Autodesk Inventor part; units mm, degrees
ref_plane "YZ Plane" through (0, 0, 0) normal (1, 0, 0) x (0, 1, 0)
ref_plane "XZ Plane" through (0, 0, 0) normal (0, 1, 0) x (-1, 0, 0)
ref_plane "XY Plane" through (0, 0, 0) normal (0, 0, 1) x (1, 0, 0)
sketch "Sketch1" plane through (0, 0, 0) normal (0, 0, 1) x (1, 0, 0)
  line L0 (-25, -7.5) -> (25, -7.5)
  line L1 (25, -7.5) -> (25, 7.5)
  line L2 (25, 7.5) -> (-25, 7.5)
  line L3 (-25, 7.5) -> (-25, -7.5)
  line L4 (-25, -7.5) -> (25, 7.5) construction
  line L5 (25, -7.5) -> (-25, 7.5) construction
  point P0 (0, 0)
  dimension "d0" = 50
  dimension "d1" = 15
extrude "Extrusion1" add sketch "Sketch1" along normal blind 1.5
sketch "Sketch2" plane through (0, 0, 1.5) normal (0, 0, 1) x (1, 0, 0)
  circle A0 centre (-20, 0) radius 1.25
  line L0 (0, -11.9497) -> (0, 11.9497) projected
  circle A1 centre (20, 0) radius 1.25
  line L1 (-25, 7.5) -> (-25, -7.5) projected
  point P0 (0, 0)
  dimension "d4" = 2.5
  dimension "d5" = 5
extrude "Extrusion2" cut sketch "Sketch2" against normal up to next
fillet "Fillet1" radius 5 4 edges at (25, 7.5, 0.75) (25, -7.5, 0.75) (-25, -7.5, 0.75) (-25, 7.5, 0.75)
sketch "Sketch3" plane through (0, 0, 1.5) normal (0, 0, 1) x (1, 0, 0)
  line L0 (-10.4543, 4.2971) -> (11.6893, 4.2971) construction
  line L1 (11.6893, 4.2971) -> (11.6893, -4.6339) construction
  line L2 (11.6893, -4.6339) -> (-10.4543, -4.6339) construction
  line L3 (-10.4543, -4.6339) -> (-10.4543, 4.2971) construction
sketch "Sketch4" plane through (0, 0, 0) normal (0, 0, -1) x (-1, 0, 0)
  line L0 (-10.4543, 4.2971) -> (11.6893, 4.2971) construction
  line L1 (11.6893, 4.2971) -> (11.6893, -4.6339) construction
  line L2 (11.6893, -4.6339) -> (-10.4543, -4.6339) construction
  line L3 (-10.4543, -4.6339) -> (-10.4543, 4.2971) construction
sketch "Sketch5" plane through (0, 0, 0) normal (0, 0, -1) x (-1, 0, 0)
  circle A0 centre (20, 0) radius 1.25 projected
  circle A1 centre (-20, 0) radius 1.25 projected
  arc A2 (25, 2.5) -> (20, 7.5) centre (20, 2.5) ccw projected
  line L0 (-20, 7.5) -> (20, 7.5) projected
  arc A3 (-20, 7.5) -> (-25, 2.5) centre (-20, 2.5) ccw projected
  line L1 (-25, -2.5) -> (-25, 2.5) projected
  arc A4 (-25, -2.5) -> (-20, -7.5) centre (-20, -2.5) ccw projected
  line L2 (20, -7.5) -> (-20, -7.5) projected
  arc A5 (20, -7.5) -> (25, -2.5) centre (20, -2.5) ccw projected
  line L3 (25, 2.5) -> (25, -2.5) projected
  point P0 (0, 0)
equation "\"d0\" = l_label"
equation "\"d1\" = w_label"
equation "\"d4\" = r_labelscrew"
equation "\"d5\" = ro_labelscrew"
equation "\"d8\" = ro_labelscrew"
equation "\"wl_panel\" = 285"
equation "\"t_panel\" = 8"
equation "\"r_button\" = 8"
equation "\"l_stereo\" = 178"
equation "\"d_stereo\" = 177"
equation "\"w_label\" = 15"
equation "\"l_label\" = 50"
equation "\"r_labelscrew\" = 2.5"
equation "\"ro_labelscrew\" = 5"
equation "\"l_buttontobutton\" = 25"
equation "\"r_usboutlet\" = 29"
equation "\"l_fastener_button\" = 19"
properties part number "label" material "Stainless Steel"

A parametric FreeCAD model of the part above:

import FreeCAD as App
import Part
import Sketcher
from FreeCAD import Vector


def edges_at(feature, points):
    """Names of the edges that pass closest to the given points."""
    edges = feature.Shape.Edges
    near = lambda p: min(range(len(edges)), key=lambda i: edges[i].distToShape(Part.Vertex(*p))[0])
    return sorted({f"Edge{near(p) + 1}" for p in points})


def add_polygon(sketch, points):
    """Adds a closed chain of lines whose ends are joined by coincident constraints."""
    first, n = sketch.GeometryCount, len(points)
    for a, b in zip(points, points[1:] + points[:1]):
        sketch.addGeometry(Part.LineSegment(App.Vector(*a, 0), App.Vector(*b, 0)), False)
    for i in range(n):
        sketch.addConstraint(Sketcher.Constraint("Coincident", first + i, 2, first + (i + 1) % n, 1))

doc = App.newDocument("Part")
body = doc.addObject("PartDesign::Body", "Body")

sketch1 = body.newObject("Sketcher::SketchObject", "Sketch")
sketch1.AttachmentSupport = (doc.getObject("XY_Plane"), [""])
sketch1.MapMode = "FlatFace"
add_polygon(sketch1, [(-25, 7.5), (-25, -7.5), (25, -7.5), (25, 7.5)])
sketch1.addConstraint(Sketcher.Constraint("Vertical", 0))
sketch1.addConstraint(Sketcher.Constraint("Horizontal", 1))
sketch1.addConstraint(Sketcher.Constraint("Vertical", 2))
sketch1.addConstraint(Sketcher.Constraint("Horizontal", 3))
sketch1.addConstraint(Sketcher.Constraint("Symmetric", 0, 2, 2, 2, -1, 1))
sketch1.addConstraint(Sketcher.Constraint("DistanceX", 1, 1, 1, 2, 50.0))
sketch1.addConstraint(Sketcher.Constraint("DistanceY", 0, 2, 0, 1, 15.0))
pad1 = body.newObject("PartDesign::Pad", "Pad")
pad1.Profile = sketch1
pad1.Length = 1.5

sketch2 = body.newObject("Sketcher::SketchObject", "Sketch001")
sketch2.AttachmentSupport = (doc.getObject("XY_Plane"), [""])
sketch2.MapMode = "FlatFace"
sketch2.AttachmentOffset = App.Placement(Vector(0, 0, 1.5), App.Rotation())
sketch2.addGeometry(Part.Circle(Vector(-20, 0, 0), Vector(0, 0, 1), 1.25), False)
sketch2.addGeometry(Part.Circle(Vector(20, 0, 0), Vector(0, 0, 1), 1.25), False)
sketch2.addConstraint(Sketcher.Constraint("Equal", 0, 1))
sketch2.addConstraint(Sketcher.Constraint("Symmetric", 0, 3, 1, 3, -1, 1))
sketch2.addConstraint(Sketcher.Constraint("PointOnObject", 0, 3, -1))
sketch2.addConstraint(Sketcher.Constraint("Diameter", 0, 2.5))
sketch2.addConstraint(Sketcher.Constraint("DistanceX", 0, 3, -1, 1, 20.0))
pocket1 = body.newObject("PartDesign::Pocket", "Pocket")
pocket1.Profile = sketch2
pocket1.Length = 1.5
doc.recompute()

fillet = body.newObject("PartDesign::Fillet", "Fillet")
fillet.Base = (pocket1, edges_at(pocket1, [
    (25, 7.5, 0.75),
    (25, -7.5, 0.75),
    (-25, -7.5, 0.75),
    (-25, 7.5, 0.75),
]))
fillet.Radius = 5

doc.recompute()
